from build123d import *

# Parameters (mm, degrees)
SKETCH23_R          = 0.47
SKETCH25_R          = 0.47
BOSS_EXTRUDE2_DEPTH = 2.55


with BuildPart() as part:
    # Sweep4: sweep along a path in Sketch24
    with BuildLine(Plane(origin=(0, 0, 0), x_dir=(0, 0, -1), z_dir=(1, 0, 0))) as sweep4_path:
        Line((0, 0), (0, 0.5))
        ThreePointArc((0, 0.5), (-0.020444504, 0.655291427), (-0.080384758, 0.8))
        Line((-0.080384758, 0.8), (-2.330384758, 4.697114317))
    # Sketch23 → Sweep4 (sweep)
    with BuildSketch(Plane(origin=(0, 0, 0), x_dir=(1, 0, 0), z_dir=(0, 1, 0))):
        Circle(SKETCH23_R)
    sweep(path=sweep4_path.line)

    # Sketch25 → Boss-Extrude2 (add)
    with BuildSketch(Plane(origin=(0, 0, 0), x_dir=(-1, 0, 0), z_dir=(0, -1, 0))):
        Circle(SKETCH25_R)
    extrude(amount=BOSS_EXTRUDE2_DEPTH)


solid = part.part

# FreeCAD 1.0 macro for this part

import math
import FreeCAD as App
import Part
import Sketcher
from FreeCAD import Vector
Q = App.Units.Quantity

doc = App.newDocument("Part")
body = doc.addObject("PartDesign::Body", "Body")

# Sketch on XZ plane
sketch1 = doc.addObject("Sketcher::SketchObject", "Sketch")
body.addObject(sketch1)
sketch1.AttachmentSupport = (doc.XZ_Plane, [""])
sketch1.MapMode = "FlatFace"
sketch1.addGeometry(Part.Circle(Vector(0, 0, 0), Vector(0, 0, 1), 0.47), False)
sketch1.addConstraint([
    Sketcher.Constraint("Coincident", 0, 3, -1, 1),
    Sketcher.Constraint("Diameter", 0, Q("0.94 mm")),
])

# Sketch on YZ plane
sketch2 = doc.addObject("Sketcher::SketchObject", "Sketch001")
body.addObject(sketch2)
sketch2.AttachmentSupport = (doc.YZ_Plane, [""])
sketch2.MapMode = "FlatFace"
sketch2.addGeometry([
    Part.LineSegment(Vector(0, 0, 0), Vector(0.5, 0, 0)),
    Part.ArcOfCircle(Part.Circle(Vector(0.5, 0.6, 0), Vector(0, 0, 1), 0.6), math.radians(-90), math.radians(-60)),
    Part.LineSegment(Vector(0.8, 0.080385, 0), Vector(4.697114, 2.330385, 0)),
], False)
sketch2.addConstraint([
    Sketcher.Constraint("Tangent", 0, 2, 1, 1),
    Sketcher.Constraint("Tangent", 1, 2, 2, 1),
    Sketcher.Constraint("Horizontal", 0),
    Sketcher.Constraint("Coincident", 0, 1, -1, 1),
    Sketcher.Constraint("Radius", 1, Q("0.6 mm")),
    Sketcher.Constraint("Angle", 2, Q("30 deg")),
    Sketcher.Constraint("DistanceX", 0, 1, 0, 2, Q("0.5 mm")),
    Sketcher.Constraint("Distance", 2, Q("4.5 mm")),
])
doc.recompute()

additivepipe = doc.addObject("PartDesign::AdditivePipe", "AdditivePipe")
body.addObject(additivepipe)
additivepipe.Profile = sketch1
additivepipe.Spine = (sketch2, ["Edge1", "Edge2", "Edge3"])

# Sketch on XZ plane
sketch3 = doc.addObject("Sketcher::SketchObject", "Sketch002")
body.addObject(sketch3)
sketch3.AttachmentSupport = (doc.XZ_Plane, [""])
sketch3.MapMode = "FlatFace"
sketch3.addGeometry(Part.Circle(Vector(0, 0, 0), Vector(0, 0, 1), 0.47), False)
sketch3.addConstraint([
    Sketcher.Constraint("Coincident", 0, 3, -1, 1),
    Sketcher.Constraint("Diameter", 0, Q("0.94 mm")),
])
pad1 = doc.addObject("PartDesign::Pad", "Pad")
body.addObject(pad1)
pad1.Profile = sketch3
pad1.Length = 2.55

doc.recompute()
